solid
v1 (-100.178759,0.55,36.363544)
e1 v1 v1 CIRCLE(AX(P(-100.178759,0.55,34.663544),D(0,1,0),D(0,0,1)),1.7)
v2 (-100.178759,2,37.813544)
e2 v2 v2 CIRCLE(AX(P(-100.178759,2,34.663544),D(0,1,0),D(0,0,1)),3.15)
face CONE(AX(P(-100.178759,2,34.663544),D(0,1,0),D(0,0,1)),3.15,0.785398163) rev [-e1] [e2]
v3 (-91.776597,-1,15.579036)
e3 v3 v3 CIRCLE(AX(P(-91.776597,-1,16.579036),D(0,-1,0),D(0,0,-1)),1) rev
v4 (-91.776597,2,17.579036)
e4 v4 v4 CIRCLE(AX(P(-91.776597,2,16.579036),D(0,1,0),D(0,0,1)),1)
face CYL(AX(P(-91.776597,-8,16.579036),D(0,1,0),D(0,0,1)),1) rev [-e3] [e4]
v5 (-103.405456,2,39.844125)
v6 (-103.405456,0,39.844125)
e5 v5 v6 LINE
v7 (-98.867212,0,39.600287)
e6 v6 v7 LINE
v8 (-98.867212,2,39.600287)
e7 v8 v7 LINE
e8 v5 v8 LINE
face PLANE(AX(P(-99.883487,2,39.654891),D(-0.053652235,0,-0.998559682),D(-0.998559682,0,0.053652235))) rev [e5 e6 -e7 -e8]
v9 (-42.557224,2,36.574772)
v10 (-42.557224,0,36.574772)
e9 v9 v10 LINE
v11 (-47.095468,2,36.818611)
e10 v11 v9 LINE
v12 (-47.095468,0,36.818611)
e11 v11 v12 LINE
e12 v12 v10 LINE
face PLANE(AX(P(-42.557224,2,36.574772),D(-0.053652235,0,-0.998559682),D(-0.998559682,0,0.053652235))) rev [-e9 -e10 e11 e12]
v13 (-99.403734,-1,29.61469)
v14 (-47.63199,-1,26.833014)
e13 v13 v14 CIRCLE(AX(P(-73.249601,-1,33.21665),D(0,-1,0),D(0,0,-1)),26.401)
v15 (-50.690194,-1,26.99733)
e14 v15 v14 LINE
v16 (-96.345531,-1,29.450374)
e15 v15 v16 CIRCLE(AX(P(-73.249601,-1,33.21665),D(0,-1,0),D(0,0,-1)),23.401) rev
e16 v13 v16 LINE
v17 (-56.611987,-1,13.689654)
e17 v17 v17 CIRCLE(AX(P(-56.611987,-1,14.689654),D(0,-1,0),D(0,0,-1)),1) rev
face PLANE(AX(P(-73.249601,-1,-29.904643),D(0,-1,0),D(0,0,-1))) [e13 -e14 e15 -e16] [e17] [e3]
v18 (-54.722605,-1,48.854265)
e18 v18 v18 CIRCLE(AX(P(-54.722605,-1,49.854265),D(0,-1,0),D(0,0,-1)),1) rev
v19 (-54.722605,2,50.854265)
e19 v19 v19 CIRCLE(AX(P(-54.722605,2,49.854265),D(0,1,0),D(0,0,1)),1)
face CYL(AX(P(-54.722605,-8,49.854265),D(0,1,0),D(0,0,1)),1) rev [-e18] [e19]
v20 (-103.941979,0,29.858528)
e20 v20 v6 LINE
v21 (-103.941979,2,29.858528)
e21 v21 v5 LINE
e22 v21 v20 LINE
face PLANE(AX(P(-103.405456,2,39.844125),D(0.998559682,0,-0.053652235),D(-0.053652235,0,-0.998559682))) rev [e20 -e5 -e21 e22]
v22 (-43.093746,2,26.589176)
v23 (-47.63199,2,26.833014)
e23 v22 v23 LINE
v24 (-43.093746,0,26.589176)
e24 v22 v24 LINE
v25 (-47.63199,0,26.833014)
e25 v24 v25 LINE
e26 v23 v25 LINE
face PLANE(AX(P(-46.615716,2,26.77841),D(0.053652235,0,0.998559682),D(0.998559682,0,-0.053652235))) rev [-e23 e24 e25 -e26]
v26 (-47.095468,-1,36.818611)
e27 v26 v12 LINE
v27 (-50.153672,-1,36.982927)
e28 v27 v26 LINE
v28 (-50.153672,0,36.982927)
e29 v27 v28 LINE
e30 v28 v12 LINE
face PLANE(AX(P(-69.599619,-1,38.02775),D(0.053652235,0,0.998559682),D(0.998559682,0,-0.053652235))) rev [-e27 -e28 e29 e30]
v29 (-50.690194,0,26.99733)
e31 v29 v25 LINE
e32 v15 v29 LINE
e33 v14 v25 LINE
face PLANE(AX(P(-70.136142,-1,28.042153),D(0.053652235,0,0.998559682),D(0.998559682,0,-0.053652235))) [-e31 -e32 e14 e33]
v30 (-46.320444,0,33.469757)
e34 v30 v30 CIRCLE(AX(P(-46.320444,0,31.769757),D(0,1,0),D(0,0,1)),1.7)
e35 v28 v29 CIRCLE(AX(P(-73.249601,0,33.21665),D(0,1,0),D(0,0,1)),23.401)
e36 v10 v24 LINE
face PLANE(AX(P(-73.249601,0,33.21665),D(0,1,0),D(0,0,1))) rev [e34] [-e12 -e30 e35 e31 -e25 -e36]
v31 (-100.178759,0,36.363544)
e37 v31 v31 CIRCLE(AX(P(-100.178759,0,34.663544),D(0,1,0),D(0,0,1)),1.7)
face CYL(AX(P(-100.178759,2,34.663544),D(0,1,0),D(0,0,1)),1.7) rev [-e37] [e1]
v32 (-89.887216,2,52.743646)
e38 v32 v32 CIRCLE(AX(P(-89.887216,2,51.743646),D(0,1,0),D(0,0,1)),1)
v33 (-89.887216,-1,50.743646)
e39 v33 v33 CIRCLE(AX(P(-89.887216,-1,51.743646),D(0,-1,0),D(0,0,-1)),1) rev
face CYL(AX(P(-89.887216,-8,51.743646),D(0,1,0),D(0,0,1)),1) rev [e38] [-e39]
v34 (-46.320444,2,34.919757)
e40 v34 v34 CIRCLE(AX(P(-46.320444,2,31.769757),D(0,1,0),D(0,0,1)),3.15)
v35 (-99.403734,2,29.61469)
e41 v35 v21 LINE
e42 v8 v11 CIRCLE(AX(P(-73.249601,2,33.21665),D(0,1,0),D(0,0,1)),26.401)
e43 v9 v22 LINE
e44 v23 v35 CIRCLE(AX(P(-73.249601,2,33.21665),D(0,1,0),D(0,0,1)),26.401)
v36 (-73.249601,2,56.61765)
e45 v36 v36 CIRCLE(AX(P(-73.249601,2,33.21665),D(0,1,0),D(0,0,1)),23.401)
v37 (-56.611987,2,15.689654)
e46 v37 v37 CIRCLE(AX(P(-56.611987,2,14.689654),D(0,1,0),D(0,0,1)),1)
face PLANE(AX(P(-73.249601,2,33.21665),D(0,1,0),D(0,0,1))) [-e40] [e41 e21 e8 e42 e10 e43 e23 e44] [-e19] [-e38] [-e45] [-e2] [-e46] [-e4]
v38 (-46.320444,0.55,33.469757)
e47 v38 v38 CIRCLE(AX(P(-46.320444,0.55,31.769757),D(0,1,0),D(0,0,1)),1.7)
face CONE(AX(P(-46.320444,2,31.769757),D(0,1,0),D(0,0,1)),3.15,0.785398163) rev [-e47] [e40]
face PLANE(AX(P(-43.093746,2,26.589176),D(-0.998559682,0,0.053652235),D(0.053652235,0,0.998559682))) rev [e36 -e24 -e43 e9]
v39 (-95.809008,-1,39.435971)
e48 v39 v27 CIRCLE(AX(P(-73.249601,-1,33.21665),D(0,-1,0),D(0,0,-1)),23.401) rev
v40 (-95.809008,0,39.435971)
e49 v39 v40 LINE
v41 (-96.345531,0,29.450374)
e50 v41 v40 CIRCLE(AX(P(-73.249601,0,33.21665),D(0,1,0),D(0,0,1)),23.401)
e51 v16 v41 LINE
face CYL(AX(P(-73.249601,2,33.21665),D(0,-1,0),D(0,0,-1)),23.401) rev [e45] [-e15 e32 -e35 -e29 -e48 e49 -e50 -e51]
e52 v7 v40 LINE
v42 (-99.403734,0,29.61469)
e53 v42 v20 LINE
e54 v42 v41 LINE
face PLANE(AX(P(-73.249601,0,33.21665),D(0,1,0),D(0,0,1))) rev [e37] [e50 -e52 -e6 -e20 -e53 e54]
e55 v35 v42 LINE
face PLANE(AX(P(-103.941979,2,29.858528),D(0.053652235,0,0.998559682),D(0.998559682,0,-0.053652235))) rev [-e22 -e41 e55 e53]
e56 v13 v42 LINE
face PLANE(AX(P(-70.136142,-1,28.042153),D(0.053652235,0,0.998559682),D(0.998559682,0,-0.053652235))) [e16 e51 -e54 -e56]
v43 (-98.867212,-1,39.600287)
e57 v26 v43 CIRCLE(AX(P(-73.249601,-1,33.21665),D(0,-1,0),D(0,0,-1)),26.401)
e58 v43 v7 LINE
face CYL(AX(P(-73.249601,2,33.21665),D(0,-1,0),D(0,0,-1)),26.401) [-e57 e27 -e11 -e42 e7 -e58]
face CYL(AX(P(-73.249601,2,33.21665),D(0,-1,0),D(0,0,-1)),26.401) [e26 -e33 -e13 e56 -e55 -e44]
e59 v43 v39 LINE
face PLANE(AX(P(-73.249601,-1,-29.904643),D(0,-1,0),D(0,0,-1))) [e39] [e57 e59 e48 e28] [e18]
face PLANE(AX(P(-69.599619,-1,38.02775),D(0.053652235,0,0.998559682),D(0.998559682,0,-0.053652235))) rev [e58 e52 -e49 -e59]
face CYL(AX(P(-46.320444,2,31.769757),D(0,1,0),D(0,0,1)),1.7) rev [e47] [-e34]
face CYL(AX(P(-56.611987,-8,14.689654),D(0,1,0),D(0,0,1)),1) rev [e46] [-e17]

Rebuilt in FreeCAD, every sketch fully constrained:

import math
import FreeCAD as App
import Part
import Sketcher
from FreeCAD import Vector
Q = App.Units.Quantity


def add_polygon(sketch, points):
    """Adds a closed chain of lines whose ends are joined by coincident constraints."""
    first, n = sketch.GeometryCount, len(points)
    for a, b in zip(points, points[1:] + points[:1]):
        sketch.addGeometry(Part.LineSegment(App.Vector(*a, 0), App.Vector(*b, 0)), False)
    for i in range(n):
        sketch.addConstraint(Sketcher.Constraint("Coincident", first + i, 2, first + (i + 1) % n, 1))

doc = App.newDocument("Part")
body = doc.addObject("PartDesign::Body", "Body")

# Sketch on XZ plane
sketch1 = body.newObject("Sketcher::SketchObject", "Sketch")
sketch1.AttachmentSupport = (doc.getObject("XZ_Plane"), [""])
sketch1.MapMode = "FlatFace"
sketch1.addGeometry([
    Part.LineSegment(Vector(-100.4, 29.7, 0), Vector(-103.9, 29.9, 0)),  # 0
    Part.LineSegment(Vector(-103.9, 29.9, 0), Vector(-103.4, 39.8, 0)),  # 1
    Part.LineSegment(Vector(-103.4, 39.8, 0), Vector(-99.9, 39.7, 0)),  # 2
    Part.LineSegment(Vector(-99.9, 39.7, 0), Vector(-98.9, 39.6, 0)),  # 3
    Part.ArcOfCircle(Part.Circle(Vector(-73.2, 33.2, 0), Vector(0, 0, 1), 26.4), math.radians(8), math.radians(166)),  # 4
    Part.LineSegment(Vector(-47.1, 36.8, 0), Vector(-46.1, 36.8, 0)),  # 5
    Part.LineSegment(Vector(-46.1, 36.8, 0), Vector(-42.6, 36.6, 0)),  # 6
    Part.LineSegment(Vector(-42.6, 36.6, 0), Vector(-43.1, 26.6, 0)),  # 7
    Part.LineSegment(Vector(-43.1, 26.6, 0), Vector(-46.6, 26.8, 0)),  # 8
    Part.LineSegment(Vector(-46.6, 26.8, 0), Vector(-47.6, 26.8, 0)),  # 9
    Part.ArcOfCircle(Part.Circle(Vector(-73.2, 33.2, 0), Vector(0, 0, 1), 26.4), math.radians(-172), math.radians(-14)),  # 10
    Part.LineSegment(Vector(-99.4, 29.6, 0), Vector(-100.4, 29.7, 0)),  # 11
    Part.Circle(Vector(-73.2, 33.2, 0), Vector(0, 0, 1), 23.4),  # 12
], False)
sketch1.addConstraint([
    Sketcher.Constraint("Coincident", 0, 2, 1, 1),
    Sketcher.Constraint("Coincident", 1, 2, 2, 1),
    Sketcher.Constraint("Coincident", 2, 2, 3, 1),
    Sketcher.Constraint("Coincident", 3, 2, 4, 2),
    Sketcher.Constraint("Coincident", 4, 1, 5, 1),
    Sketcher.Constraint("Coincident", 5, 2, 6, 1),
    Sketcher.Constraint("Coincident", 6, 2, 7, 1),
    Sketcher.Constraint("Coincident", 7, 2, 8, 1),
    Sketcher.Constraint("Coincident", 8, 2, 9, 1),
    Sketcher.Constraint("Coincident", 9, 2, 10, 2),
    Sketcher.Constraint("Coincident", 10, 1, 11, 1),
    Sketcher.Constraint("Coincident", 11, 2, 0, 1),
    Sketcher.Constraint("Coincident", 10, 3, 4, 3),
    Sketcher.Constraint("Coincident", 12, 3, 4, 3),
    Sketcher.Constraint("Equal", 4, 10),
    Sketcher.Constraint("Perpendicular", 0, 1),
    Sketcher.Constraint("Perpendicular", 1, 2),
    Sketcher.Constraint("Parallel", 2, 3),
    Sketcher.Constraint("Parallel", 3, 5),
    Sketcher.Constraint("Parallel", 5, 6),
    Sketcher.Constraint("Perpendicular", 6, 7),
    Sketcher.Constraint("Perpendicular", 7, 8),
    Sketcher.Constraint("Parallel", 8, 9),
    Sketcher.Constraint("Parallel", 9, 11),
    Sketcher.Constraint("Equal", 0, 2),
    Sketcher.Constraint("Equal", 3, 5),
    Sketcher.Constraint("Equal", 2, 6),
    Sketcher.Constraint("Equal", 1, 7),
    Sketcher.Constraint("Equal", 6, 8),
    Sketcher.Constraint("Equal", 5, 9),
    Sketcher.Constraint("Equal", 9, 11),
    Sketcher.Constraint("Distance", 1, Q("10 mm")),
    Sketcher.Constraint("Diameter", 12, Q("46.802 mm")),
    Sketcher.Constraint("Radius", 4, Q("26.401 mm")),
    Sketcher.Constraint("DistanceX", 4, 3, -1, 1, Q("73.249601 mm")),
    Sketcher.Constraint("Distance", 0, Q("3.52705 mm")),
    Sketcher.Constraint("Distance", 3, Q("1.017741 mm")),
    Sketcher.Constraint("DistanceY", -1, 1, 4, 3, Q("33.21665 mm")),
    Sketcher.Constraint("DistanceX", 0, 2, -1, 1, Q("103.941979 mm")),
])
pad1 = body.newObject("PartDesign::Pad", "Pad")
pad1.Profile = sketch1
pad1.Length = 2
pad1.Reversed = True

# Sketch on XZ plane
sketch2 = body.newObject("Sketcher::SketchObject", "Sketch001")
sketch2.AttachmentSupport = (doc.getObject("XZ_Plane"), [""])
sketch2.MapMode = "FlatFace"
sketch2.AttachmentOffset = App.Placement(Vector(0, 0, -2), App.Rotation())
sketch2.addGeometry([
    Part.Circle(Vector(-91.8, 16.6, 0), Vector(0, 0, 1), 1),
    Part.Circle(Vector(-56.6, 14.7, 0), Vector(0, 0, 1), 1),
    Part.Circle(Vector(-54.7, 49.9, 0), Vector(0, 0, 1), 1),
    Part.Circle(Vector(-89.9, 51.7, 0), Vector(0, 0, 1), 1),
], False)
sketch2.addConstraint([
    Sketcher.Constraint("Equal", 0, 1),
    Sketcher.Constraint("Equal", 1, 2),
    Sketcher.Constraint("Equal", 2, 3),
    Sketcher.Constraint("Diameter", 0, Q("2 mm")),
    Sketcher.Constraint("DistanceX", 0, 3, 1, 3, Q("35.164611 mm")),
    Sketcher.Constraint("DistanceY", 1, 3, 0, 3, Q("1.889381 mm")),
    Sketcher.Constraint("DistanceX", 1, 3, 2, 3, Q("1.889381 mm")),
    Sketcher.Constraint("DistanceY", 1, 3, 2, 3, Q("35.164611 mm")),
    Sketcher.Constraint("DistanceX", 0, 3, 3, 3, Q("1.889381 mm")),
    Sketcher.Constraint("DistanceY", 0, 3, 3, 3, Q("35.164611 mm")),
    Sketcher.Constraint("DistanceX", 0, 3, -1, 1, Q("91.776597 mm")),
    Sketcher.Constraint("DistanceY", -1, 1, 0, 3, Q("16.579036 mm")),
])
pocket1 = body.newObject("PartDesign::Pocket", "Pocket")
pocket1.Profile = sketch2
pocket1.Length = 10
pocket1.Reversed = True

# Sketch on XZ plane
sketch3 = body.newObject("Sketcher::SketchObject", "Sketch002")
sketch3.AttachmentSupport = (doc.getObject("XZ_Plane"), [""])
sketch3.MapMode = "FlatFace"
sketch3.AttachmentOffset = App.Placement(Vector(0, 0, 1), App.Rotation())
sketch3.addGeometry([
    Part.ArcOfCircle(Part.Circle(Vector(-73.2, 33.2, 0), Vector(0, 0, 1), 26.4), math.radians(8), math.radians(166)),  # 0
    Part.LineSegment(Vector(-98.9, 39.6, 0), Vector(-95.8, 39.4, 0)),  # 1
    Part.ArcOfCircle(Part.Circle(Vector(-73.2, 33.2, 0), Vector(0, 0, 1), 23.4), math.radians(9), math.radians(165)),  # 2
    Part.LineSegment(Vector(-50.2, 37, 0), Vector(-47.1, 36.8, 0)),  # 3
    Part.Circle(Vector(-54.7, 49.9, 0), Vector(0, 0, 1), 1),  # 4
    Part.Circle(Vector(-89.9, 51.7, 0), Vector(0, 0, 1), 1),  # 5
    Part.ArcOfCircle(Part.Circle(Vector(-73.2, 33.2, 0), Vector(0, 0, 1), 23.4), math.radians(-171), math.radians(-15)),  # 6
    Part.LineSegment(Vector(-96.3, 29.5, 0), Vector(-99.4, 29.6, 0)),  # 7
    Part.ArcOfCircle(Part.Circle(Vector(-73.2, 33.2, 0), Vector(0, 0, 1), 26.4), math.radians(-172), math.radians(-14)),  # 8
    Part.LineSegment(Vector(-47.6, 26.8, 0), Vector(-50.7, 27, 0)),  # 9
    Part.Circle(Vector(-56.6, 14.7, 0), Vector(0, 0, 1), 1),  # 10
    Part.Circle(Vector(-91.8, 16.6, 0), Vector(0, 0, 1), 1),  # 11
], False)
sketch3.addConstraint([
    Sketcher.Constraint("Coincident", 0, 2, 1, 1),
    Sketcher.Constraint("Coincident", 1, 2, 2, 2),
    Sketcher.Constraint("Coincident", 2, 1, 3, 1),
    Sketcher.Constraint("Coincident", 3, 2, 0, 1),
    Sketcher.Constraint("Coincident", 6, 1, 7, 1),
    Sketcher.Constraint("Coincident", 7, 2, 8, 1),
    Sketcher.Constraint("Coincident", 8, 2, 9, 1),
    Sketcher.Constraint("Coincident", 9, 2, 6, 2),
    Sketcher.Constraint("Coincident", 2, 3, 0, 3),
    Sketcher.Constraint("Coincident", 6, 3, 0, 3),
    Sketcher.Constraint("Coincident", 8, 3, 0, 3),
    Sketcher.Constraint("Equal", 4, 5),
    Sketcher.Constraint("Equal", 2, 6),
    Sketcher.Constraint("Equal", 0, 8),
    Sketcher.Constraint("Equal", 5, 10),
    Sketcher.Constraint("Equal", 10, 11),
    Sketcher.Constraint("Parallel", 1, 3),
    Sketcher.Constraint("Parallel", 3, 7),
    Sketcher.Constraint("Parallel", 7, 9),
    Sketcher.Constraint("Equal", 1, 3),
    Sketcher.Constraint("Equal", 3, 7),
    Sketcher.Constraint("Equal", 7, 9),
    Sketcher.Constraint("Diameter", 4, Q("2 mm")),
    Sketcher.Constraint("Radius", 0, Q("26.401 mm")),
    Sketcher.Constraint("Radius", 2, Q("23.401 mm")),
    Sketcher.Constraint("DistanceX", 0, 3, -1, 1, Q("73.249601 mm")),
    Sketcher.Constraint("DistanceY", -1, 1, 0, 3, Q("33.21665 mm")),
    Sketcher.Constraint("DistanceX", 1, 2, -1, 1, Q("95.809008 mm")),
    Sketcher.Constraint("DistanceX", 2, 1, -1, 1, Q("50.153672 mm")),
    Sketcher.Constraint("DistanceX", 5, 3, 4, 3, Q("35.164611 mm")),
    Sketcher.Constraint("DistanceY", 4, 3, 5, 3, Q("1.889381 mm")),
    Sketcher.Constraint("DistanceX", 10, 3, 4, 3, Q("1.889381 mm")),
    Sketcher.Constraint("DistanceY", 10, 3, 4, 3, Q("35.164611 mm")),
    Sketcher.Constraint("DistanceX", 11, 3, 10, 3, Q("35.164611 mm")),
    Sketcher.Constraint("DistanceY", 10, 3, 11, 3, Q("1.889381 mm")),
    Sketcher.Constraint("DistanceY", 0, 2, 5, 3, Q("12.143359 mm")),
    Sketcher.Constraint("DistanceX", 1, 2, 11, 3, Q("4.032411 mm")),
])
pad2 = body.newObject("PartDesign::Pad", "Pad001")
pad2.Profile = sketch3
pad2.Length = 1
pad2.Reversed = True

# Sketch on YZ plane
sketch4 = body.newObject("Sketcher::SketchObject", "Sketch003")
sketch4.AttachmentSupport = (doc.getObject("YZ_Plane"), [""])
sketch4.MapMode = "FlatFace"
sketch4.AttachmentOffset = App.Placement(Vector(0, 0, -100.178759), App.Rotation())
add_polygon(sketch4, [(-1, 34.7), (2, 34.7), (2, 37.8), (0.6, 36.4), (-1, 36.4)])  # lines 0-4
sketch4.addGeometry(Part.LineSegment(Vector(2, 34.7, 0), Vector(-1, 34.7, 0)), True)  # axis
sketch4.addConstraint([
    Sketcher.Constraint("Horizontal", 0),
    Sketcher.Constraint("Vertical", 1),
    Sketcher.Constraint("Horizontal", 3),
    Sketcher.Constraint("Vertical", 4),
    Sketcher.Constraint("Horizontal", 5),
    Sketcher.Constraint("Coincident", 5, 1, 0, 2),
    Sketcher.Constraint("Vertical", 3, 2, 5, 2),
    Sketcher.Constraint("Angle", 2, Q("-135 deg")),
    Sketcher.Constraint("DistanceY", 4, 2, 4, 1, Q("1.7 mm")),
    Sketcher.Constraint("DistanceX", -1, 1, 0, 2, Q("2 mm")),
    Sketcher.Constraint("DistanceY", 1, 1, 1, 2, Q("3.15 mm")),
    Sketcher.Constraint("DistanceX", 0, 1, 0, 2, Q("3.000025 mm")),
    Sketcher.Constraint("DistanceY", -1, 1, 0, 2, Q("34.663544 mm")),
])
groove = body.newObject("PartDesign::Groove", "Groove")
groove.Profile = sketch4
groove.ReferenceAxis = (sketch4, ["Axis0"])
groove.Angle = 360
doc.recompute()

datumline = body.newObject("PartDesign::Line", "DatumLine")
datumline.Placement = App.Placement(Vector(0, 0, 0), App.Rotation(Vector(0, 0, 1), Vector(0.998559682, 0, -0.053652235)))
linearpattern = body.newObject("PartDesign::LinearPattern", "LinearPattern")
linearpattern.Originals = [groove]
linearpattern.Direction = (datumline, [""])
linearpattern.Mode = "offset"
linearpattern.Offset = 53.936
linearpattern.Occurrences = 2
body.Tip = linearpattern

doc.recompute()
